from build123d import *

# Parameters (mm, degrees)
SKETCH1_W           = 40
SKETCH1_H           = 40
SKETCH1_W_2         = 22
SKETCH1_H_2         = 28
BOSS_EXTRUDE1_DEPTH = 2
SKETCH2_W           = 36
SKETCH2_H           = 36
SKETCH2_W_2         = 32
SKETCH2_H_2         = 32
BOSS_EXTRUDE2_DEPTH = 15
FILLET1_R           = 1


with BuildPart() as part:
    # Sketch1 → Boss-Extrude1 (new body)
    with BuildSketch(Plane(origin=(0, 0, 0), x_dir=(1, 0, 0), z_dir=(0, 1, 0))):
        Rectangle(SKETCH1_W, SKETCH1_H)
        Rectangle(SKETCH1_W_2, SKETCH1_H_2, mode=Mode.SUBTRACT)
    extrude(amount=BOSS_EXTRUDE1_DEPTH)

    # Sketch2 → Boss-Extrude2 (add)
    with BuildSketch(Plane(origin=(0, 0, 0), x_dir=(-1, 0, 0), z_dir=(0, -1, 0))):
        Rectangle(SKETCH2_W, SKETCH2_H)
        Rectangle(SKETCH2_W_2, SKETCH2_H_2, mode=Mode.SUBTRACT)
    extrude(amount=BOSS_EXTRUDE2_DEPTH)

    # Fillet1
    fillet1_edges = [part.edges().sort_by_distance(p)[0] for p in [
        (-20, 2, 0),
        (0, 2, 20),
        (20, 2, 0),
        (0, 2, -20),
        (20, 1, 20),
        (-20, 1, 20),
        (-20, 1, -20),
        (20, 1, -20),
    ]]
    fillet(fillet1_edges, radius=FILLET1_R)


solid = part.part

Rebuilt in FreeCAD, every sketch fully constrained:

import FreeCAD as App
import Part
import Sketcher
from FreeCAD import Vector
Q = App.Units.Quantity


def edges_at(feature, points):
    """Names of the edges that pass closest to the given points."""
    edges = feature.Shape.Edges
    near = lambda p: min(range(len(edges)), key=lambda i: edges[i].distToShape(Part.Vertex(*p))[0])
    return sorted({f"Edge{near(p) + 1}" for p in points})


def add_polygon(sketch, points):
    """Adds a closed chain of lines whose ends are joined by coincident constraints."""
    first, n = sketch.GeometryCount, len(points)
    for a, b in zip(points, points[1:] + points[:1]):
        sketch.addGeometry(Part.LineSegment(App.Vector(*a, 0), App.Vector(*b, 0)), False)
    for i in range(n):
        sketch.addConstraint(Sketcher.Constraint("Coincident", first + i, 2, first + (i + 1) % n, 1))

doc = App.newDocument("Part")
params = doc.addObject("Spreadsheet::Sheet", "Params")
for row, (alias, value) in enumerate([
    ("sketch1_width", "40 mm"),
    ("sketch1_width2", "22 mm"),
    ("sketch1_height", "28 mm"),
    ("pad1_length", "2 mm"),
    ("sketch2_width", "36 mm"),
    ("sketch2_width2", "32 mm"),
    ("pad2_length", "15 mm"),
    ("fillet_radius", "1 mm"),
], start=1):
    params.set(f"A{row}", alias)
    params.set(f"B{row}", "=" + value)
    params.setAlias(f"B{row}", alias)

body = doc.addObject("PartDesign::Body", "Body")

# Sketch on XZ plane
sketch1 = doc.addObject("Sketcher::SketchObject", "Sketch")
body.addObject(sketch1)
sketch1.AttachmentSupport = (doc.XZ_Plane, [""])
sketch1.MapMode = "FlatFace"
add_polygon(sketch1, [(-20, -20), (-20, 20), (20, 20), (20, -20)])  # lines 0-3
add_polygon(sketch1, [(11, 14), (-11, 14), (-11, -14), (11, -14)])  # lines 4-7
sketch1.addConstraint(Sketcher.Constraint("Vertical", 0))
sketch1.addConstraint(Sketcher.Constraint("Horizontal", 1))
sketch1.addConstraint(Sketcher.Constraint("Vertical", 2))
sketch1.addConstraint(Sketcher.Constraint("Horizontal", 3))
sketch1.addConstraint(Sketcher.Constraint("Horizontal", 4))
sketch1.addConstraint(Sketcher.Constraint("Vertical", 5))
sketch1.addConstraint(Sketcher.Constraint("Horizontal", 6))
sketch1.addConstraint(Sketcher.Constraint("Vertical", 7))
sketch1.addConstraint(Sketcher.Constraint("Symmetric", 0, 2, 2, 2, -1, 1))
sketch1.addConstraint(Sketcher.Constraint("Symmetric", 4, 2, 6, 2, -1, 1))
sketch1.addConstraint(Sketcher.Constraint("Equal", 3, 0))
sketch1.addConstraint(Sketcher.Constraint("DistanceX", 1, 1, 1, 2, Q("40 mm")))
sketch1.addConstraint(Sketcher.Constraint("DistanceX", 4, 2, 4, 1, Q("22 mm")))
sketch1.addConstraint(Sketcher.Constraint("DistanceY", 5, 2, 5, 1, Q("28 mm")))
sketch1.setExpression("Constraints[19]", "Params.sketch1_width")
sketch1.setExpression("Constraints[20]", "Params.sketch1_width2")
sketch1.setExpression("Constraints[21]", "Params.sketch1_height")
pad1 = doc.addObject("PartDesign::Pad", "Pad")
body.addObject(pad1)
pad1.Profile = sketch1
pad1.setExpression("Length", "Params.pad1_length")
pad1.Reversed = True

# Sketch on XZ plane
sketch2 = doc.addObject("Sketcher::SketchObject", "Sketch001")
body.addObject(sketch2)
sketch2.AttachmentSupport = (doc.XZ_Plane, [""])
sketch2.MapMode = "FlatFace"
add_polygon(sketch2, [(18, -18), (18, 18), (-18, 18), (-18, -18)])  # lines 0-3
add_polygon(sketch2, [(-16, 16), (16, 16), (16, -16), (-16, -16)])  # lines 4-7
sketch2.addConstraint(Sketcher.Constraint("Vertical", 0))
sketch2.addConstraint(Sketcher.Constraint("Horizontal", 1))
sketch2.addConstraint(Sketcher.Constraint("Vertical", 2))
sketch2.addConstraint(Sketcher.Constraint("Horizontal", 3))
sketch2.addConstraint(Sketcher.Constraint("Horizontal", 4))
sketch2.addConstraint(Sketcher.Constraint("Vertical", 5))
sketch2.addConstraint(Sketcher.Constraint("Horizontal", 6))
sketch2.addConstraint(Sketcher.Constraint("Vertical", 7))
sketch2.addConstraint(Sketcher.Constraint("Symmetric", 0, 2, 2, 2, -1, 1))
sketch2.addConstraint(Sketcher.Constraint("Symmetric", 4, 2, 6, 2, -1, 1))
sketch2.addConstraint(Sketcher.Constraint("Equal", 3, 0))
sketch2.addConstraint(Sketcher.Constraint("Equal", 6, 5))
sketch2.addConstraint(Sketcher.Constraint("DistanceX", 1, 2, 1, 1, Q("36 mm")))
sketch2.addConstraint(Sketcher.Constraint("DistanceX", 4, 1, 4, 2, Q("32 mm")))
sketch2.setExpression("Constraints[20]", "Params.sketch2_width")
sketch2.setExpression("Constraints[21]", "Params.sketch2_width2")
pad2 = doc.addObject("PartDesign::Pad", "Pad001")
body.addObject(pad2)
pad2.Profile = sketch2
pad2.setExpression("Length", "Params.pad2_length")
doc.recompute()

fillet = doc.addObject("PartDesign::Fillet", "Fillet")
body.addObject(fillet)
fillet.Base = (pad2, edges_at(pad2, [
    (-20, 2, 0),
    (0, 2, 20),
    (20, 2, 0),
    (0, 2, -20),
    (20, 1, 20),
    (-20, 1, 20),
    (-20, 1, -20),
    (20, 1, -20),
]))
fillet.setExpression("Radius", "Params.fillet_radius")

doc.recompute()
